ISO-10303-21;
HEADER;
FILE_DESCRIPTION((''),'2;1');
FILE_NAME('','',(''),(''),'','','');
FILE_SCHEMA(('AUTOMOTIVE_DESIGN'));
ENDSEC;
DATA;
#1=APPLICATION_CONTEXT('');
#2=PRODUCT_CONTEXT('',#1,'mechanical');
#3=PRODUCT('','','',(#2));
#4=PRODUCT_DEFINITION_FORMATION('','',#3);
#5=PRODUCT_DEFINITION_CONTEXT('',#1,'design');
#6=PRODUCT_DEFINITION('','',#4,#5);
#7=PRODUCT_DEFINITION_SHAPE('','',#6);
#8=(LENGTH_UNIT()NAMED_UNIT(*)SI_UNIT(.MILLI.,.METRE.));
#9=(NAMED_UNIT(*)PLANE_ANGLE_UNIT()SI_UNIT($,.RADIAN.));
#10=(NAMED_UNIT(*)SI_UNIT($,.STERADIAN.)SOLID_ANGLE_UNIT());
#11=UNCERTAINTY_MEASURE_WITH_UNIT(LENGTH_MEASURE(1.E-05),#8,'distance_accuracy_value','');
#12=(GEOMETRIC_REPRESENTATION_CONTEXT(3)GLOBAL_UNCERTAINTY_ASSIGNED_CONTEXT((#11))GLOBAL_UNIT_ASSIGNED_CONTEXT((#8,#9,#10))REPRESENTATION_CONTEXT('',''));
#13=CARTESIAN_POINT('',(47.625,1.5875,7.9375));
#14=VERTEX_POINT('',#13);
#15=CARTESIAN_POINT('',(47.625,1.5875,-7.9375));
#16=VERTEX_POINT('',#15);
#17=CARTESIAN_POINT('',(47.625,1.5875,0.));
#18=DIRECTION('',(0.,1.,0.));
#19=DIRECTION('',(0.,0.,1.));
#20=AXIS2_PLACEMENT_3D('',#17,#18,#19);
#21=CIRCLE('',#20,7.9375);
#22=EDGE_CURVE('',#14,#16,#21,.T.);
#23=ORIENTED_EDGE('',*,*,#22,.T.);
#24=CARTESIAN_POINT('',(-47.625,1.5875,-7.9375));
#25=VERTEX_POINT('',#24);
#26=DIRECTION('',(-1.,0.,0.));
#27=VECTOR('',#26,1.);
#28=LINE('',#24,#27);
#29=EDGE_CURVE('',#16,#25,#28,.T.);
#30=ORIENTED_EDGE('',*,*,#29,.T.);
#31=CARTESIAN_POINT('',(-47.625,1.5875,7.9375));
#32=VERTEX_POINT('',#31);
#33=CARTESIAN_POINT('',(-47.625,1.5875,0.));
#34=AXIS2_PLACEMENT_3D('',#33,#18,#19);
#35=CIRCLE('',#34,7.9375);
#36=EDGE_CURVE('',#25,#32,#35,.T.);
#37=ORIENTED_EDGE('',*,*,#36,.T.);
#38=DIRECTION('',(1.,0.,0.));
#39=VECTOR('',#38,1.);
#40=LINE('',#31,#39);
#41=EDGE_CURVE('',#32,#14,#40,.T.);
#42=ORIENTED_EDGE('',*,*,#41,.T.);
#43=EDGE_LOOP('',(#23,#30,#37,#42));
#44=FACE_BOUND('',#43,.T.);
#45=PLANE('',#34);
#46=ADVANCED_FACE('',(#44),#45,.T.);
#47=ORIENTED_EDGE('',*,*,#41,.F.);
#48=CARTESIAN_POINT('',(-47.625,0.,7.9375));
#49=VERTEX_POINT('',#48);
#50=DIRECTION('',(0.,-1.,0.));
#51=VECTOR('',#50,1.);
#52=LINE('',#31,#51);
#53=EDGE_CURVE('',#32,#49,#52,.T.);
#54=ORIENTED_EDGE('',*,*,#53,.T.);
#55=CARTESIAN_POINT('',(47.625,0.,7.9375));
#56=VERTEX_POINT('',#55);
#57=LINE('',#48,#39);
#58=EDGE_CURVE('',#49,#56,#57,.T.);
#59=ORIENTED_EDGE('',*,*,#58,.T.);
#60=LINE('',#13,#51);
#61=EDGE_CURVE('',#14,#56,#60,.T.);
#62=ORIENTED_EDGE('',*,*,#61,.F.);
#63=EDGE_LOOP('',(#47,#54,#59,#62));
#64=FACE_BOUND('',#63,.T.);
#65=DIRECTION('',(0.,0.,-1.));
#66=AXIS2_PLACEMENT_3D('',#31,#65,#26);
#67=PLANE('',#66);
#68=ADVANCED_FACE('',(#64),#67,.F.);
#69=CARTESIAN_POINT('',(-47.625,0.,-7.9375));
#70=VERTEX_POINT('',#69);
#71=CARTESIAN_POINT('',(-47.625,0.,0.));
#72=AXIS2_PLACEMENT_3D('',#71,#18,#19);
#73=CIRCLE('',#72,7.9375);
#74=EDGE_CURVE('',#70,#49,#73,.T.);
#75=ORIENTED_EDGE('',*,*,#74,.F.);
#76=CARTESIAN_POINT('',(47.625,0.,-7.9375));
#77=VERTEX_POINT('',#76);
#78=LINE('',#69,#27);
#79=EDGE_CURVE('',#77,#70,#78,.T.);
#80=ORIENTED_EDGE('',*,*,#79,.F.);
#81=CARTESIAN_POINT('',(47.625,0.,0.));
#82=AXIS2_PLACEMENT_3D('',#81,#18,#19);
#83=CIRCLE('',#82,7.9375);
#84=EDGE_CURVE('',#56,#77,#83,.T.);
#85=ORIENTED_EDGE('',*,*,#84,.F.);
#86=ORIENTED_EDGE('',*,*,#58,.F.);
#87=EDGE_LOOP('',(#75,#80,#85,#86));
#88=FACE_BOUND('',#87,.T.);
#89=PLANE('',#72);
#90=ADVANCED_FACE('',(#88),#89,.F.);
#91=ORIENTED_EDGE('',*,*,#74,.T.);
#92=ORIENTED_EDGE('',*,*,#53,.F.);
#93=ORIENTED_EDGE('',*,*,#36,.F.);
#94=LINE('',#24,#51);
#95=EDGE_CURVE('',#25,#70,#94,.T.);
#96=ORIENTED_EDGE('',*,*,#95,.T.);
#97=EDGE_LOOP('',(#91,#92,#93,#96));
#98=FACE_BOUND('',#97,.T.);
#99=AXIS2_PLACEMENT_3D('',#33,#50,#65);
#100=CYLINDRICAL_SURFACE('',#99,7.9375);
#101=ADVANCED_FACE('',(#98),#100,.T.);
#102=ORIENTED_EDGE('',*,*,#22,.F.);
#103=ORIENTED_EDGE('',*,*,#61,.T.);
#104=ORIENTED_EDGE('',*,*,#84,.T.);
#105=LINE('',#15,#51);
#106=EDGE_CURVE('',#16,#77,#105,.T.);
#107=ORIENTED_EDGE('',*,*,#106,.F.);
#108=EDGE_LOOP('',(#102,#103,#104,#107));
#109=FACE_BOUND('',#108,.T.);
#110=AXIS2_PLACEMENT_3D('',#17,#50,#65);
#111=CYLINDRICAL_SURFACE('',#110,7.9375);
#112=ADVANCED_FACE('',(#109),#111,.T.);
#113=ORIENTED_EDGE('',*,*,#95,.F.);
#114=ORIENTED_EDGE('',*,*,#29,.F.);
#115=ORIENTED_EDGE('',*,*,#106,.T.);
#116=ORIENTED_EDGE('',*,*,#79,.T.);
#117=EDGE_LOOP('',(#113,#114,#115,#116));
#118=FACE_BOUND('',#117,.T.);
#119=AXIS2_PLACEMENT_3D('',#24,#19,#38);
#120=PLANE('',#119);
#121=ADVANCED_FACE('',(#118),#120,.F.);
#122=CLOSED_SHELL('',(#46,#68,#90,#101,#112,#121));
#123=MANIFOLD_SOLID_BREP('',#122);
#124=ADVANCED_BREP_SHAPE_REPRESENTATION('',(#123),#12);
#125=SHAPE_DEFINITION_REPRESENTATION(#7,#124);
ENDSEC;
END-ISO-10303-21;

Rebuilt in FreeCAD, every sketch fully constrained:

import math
import FreeCAD as App
import Part
import Sketcher

V = App.Vector
Q = App.Units.Quantity

doc = App.newDocument("Part")
body = doc.addObject("PartDesign::Body", "Body")

# Sketch on XZ plane
sketch1 = body.newObject("Sketcher::SketchObject", "Sketch")
sketch1.AttachmentSupport = (doc.getObject("XZ_Plane"), [""])
sketch1.MapMode = "FlatFace"
sketch1.addGeometry([
    Part.LineSegment(V(48, -8, 0), V(-48, -8, 0)),
    Part.ArcOfCircle(Part.Circle(V(-48, 0, 0), V(0, 0, 1), 8), math.radians(90), math.radians(270)),
    Part.LineSegment(V(-48, 8, 0), V(48, 8, 0)),
    Part.ArcOfCircle(Part.Circle(V(48, 0, 0), V(0, 0, 1), 8), math.radians(-90), math.radians(90)),
], False)
sketch1.addConstraint([
    Sketcher.Constraint("Tangent", 0, 2, 1, 2),
    Sketcher.Constraint("Tangent", 1, 1, 2, 1),
    Sketcher.Constraint("Tangent", 2, 2, 3, 2),
    Sketcher.Constraint("Tangent", 3, 1, 0, 1),
    Sketcher.Constraint("Horizontal", 0),
    Sketcher.Constraint("Horizontal", 2),
    Sketcher.Constraint("Symmetric", 1, 3, 3, 3, -1, 1),
    Sketcher.Constraint("Radius", 1, Q("0.3125 in")),
    Sketcher.Constraint("DistanceX", 0, 2, 0, 1, Q("3.75 in")),
])
pad1 = body.newObject("PartDesign::Pad", "Pad")
pad1.Profile = sketch1
pad1.Length = Q("0.0625 in")
pad1.Reversed = True

doc.recompute()
